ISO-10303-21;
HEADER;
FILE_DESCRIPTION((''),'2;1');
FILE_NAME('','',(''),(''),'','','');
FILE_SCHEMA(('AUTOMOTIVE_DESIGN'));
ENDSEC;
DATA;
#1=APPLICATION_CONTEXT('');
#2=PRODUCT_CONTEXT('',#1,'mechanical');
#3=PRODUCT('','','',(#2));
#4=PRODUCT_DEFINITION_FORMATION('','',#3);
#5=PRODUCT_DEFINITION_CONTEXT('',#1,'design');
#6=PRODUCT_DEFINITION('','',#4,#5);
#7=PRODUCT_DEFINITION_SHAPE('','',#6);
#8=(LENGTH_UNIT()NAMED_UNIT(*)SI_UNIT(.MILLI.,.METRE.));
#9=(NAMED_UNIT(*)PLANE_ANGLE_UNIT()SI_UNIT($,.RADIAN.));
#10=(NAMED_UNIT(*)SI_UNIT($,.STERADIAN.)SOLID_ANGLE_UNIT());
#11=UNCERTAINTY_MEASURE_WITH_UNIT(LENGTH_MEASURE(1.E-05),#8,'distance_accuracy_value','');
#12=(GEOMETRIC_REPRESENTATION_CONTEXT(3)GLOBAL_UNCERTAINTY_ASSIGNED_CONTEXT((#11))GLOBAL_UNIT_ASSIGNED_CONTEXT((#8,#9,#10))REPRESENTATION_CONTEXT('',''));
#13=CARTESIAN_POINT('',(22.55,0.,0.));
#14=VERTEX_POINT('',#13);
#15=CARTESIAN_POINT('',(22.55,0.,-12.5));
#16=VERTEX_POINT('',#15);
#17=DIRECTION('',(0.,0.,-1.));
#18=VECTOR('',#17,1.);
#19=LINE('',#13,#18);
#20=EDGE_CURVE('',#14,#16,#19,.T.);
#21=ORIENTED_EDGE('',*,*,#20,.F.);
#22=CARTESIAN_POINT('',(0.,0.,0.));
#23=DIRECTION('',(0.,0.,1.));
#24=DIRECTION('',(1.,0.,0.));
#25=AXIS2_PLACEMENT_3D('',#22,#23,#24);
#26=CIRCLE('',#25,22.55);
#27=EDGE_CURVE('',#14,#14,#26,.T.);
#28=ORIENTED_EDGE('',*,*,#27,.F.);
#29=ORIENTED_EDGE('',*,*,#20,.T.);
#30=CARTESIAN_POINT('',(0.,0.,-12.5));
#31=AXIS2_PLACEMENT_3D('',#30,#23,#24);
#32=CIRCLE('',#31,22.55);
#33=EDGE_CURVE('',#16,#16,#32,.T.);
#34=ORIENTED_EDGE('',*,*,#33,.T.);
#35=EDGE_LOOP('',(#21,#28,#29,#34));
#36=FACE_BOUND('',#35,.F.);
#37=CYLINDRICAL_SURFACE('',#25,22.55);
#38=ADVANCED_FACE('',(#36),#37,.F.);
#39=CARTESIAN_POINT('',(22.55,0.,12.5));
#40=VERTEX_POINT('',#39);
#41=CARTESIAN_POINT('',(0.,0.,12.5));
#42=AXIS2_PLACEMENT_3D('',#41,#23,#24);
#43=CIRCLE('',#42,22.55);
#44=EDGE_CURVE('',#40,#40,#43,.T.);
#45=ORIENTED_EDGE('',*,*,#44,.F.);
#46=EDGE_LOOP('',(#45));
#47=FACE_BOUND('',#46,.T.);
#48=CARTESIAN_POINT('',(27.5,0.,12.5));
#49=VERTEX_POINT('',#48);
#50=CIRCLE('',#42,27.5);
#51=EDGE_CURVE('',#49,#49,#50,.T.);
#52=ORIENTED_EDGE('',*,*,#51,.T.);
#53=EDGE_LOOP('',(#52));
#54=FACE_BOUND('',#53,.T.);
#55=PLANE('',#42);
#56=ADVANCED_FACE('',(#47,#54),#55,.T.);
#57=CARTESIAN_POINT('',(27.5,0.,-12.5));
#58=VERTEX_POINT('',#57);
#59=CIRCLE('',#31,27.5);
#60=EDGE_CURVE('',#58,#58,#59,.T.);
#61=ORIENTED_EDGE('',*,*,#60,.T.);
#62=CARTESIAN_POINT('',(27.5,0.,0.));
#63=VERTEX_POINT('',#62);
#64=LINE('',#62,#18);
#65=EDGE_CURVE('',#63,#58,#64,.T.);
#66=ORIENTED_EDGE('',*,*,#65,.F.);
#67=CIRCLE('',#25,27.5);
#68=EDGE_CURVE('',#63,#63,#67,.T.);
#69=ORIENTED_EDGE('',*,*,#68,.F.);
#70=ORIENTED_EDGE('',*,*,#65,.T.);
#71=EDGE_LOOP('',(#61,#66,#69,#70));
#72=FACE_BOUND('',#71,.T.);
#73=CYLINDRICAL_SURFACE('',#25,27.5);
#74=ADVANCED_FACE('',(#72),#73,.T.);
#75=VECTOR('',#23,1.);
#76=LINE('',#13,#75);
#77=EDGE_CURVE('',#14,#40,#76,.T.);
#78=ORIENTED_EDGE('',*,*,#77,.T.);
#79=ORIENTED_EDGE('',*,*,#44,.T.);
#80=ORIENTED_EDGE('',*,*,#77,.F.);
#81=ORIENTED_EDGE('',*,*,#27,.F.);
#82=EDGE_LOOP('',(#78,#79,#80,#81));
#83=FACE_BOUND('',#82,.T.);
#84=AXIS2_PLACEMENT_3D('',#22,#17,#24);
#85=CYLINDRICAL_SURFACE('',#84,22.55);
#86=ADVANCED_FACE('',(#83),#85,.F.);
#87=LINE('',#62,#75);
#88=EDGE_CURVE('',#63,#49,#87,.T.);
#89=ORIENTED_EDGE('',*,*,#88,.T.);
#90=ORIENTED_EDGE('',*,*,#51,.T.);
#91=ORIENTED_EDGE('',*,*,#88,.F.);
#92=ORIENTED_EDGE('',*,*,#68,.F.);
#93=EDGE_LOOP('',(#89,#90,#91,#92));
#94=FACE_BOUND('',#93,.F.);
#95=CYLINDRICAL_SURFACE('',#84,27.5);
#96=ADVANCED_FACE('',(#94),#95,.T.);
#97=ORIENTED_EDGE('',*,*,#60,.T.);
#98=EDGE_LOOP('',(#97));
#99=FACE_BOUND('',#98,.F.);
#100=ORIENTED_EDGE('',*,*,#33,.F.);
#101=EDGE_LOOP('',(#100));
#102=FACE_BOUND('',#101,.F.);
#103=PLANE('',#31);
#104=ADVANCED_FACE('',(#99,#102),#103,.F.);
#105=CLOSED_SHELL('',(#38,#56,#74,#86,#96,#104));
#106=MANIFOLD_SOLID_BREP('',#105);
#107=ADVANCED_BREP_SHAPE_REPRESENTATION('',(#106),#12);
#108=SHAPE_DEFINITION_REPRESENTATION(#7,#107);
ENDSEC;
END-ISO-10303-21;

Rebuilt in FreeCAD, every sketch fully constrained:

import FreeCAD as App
import Part
import Sketcher

doc = App.newDocument("Part")
body = doc.addObject("PartDesign::Body", "Body")

sketch1 = body.newObject("Sketcher::SketchObject", "Sketch")
sketch1.AttachmentSupport = (doc.getObject("XY_Plane"), [""])
sketch1.MapMode = "FlatFace"
sketch1.addGeometry(Part.Circle(App.Vector(0, 0, 0), App.Vector(0, 0, 1), 27.5), False)
sketch1.addGeometry(Part.Circle(App.Vector(0, 0, 0), App.Vector(0, 0, 1), 22.55), False)
sketch1.addConstraint(Sketcher.Constraint("Coincident", 0, 3, -1, 1))
sketch1.addConstraint(Sketcher.Constraint("Coincident", 1, 3, -1, 1))
sketch1.addConstraint(Sketcher.Constraint("Diameter", 0, 55.0))
sketch1.addConstraint(Sketcher.Constraint("Diameter", 1, 45.1))
pad1 = body.newObject("PartDesign::Pad", "Pad")
pad1.Profile = sketch1
pad1.Length = 25
pad1.Midplane = True

doc.recompute()
